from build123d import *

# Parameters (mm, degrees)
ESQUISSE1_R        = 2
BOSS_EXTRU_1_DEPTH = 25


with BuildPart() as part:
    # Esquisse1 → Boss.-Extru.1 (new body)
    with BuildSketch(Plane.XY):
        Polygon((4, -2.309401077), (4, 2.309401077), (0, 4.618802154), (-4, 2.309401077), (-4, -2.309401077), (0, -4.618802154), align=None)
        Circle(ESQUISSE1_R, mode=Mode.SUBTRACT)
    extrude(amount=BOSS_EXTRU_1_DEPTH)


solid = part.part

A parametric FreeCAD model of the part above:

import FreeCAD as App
import Part
import Sketcher
from FreeCAD import Vector
Q = App.Units.Quantity


def add_polygon(sketch, points):
    """Adds a closed chain of lines whose ends are joined by coincident constraints."""
    first, n = sketch.GeometryCount, len(points)
    for a, b in zip(points, points[1:] + points[:1]):
        sketch.addGeometry(Part.LineSegment(App.Vector(*a, 0), App.Vector(*b, 0)), False)
    for i in range(n):
        sketch.addConstraint(Sketcher.Constraint("Coincident", first + i, 2, first + (i + 1) % n, 1))

doc = App.newDocument("Part")
body = doc.addObject("PartDesign::Body", "Body")

# Sketch on XY plane
sketch1 = body.newObject("Sketcher::SketchObject", "Sketch")
sketch1.AttachmentSupport = (doc.getObject("XY_Plane"), [""])
sketch1.MapMode = "FlatFace"
add_polygon(sketch1, [(4, -2.3), (4, 2.3), (0, 4.6), (-4, 2.3), (-4, -2.3), (0, -4.6)])  # lines 0-5
sketch1.addGeometry(Part.Circle(Vector(0, 0, 0), Vector(0, 0, 1), 2), False)  # 6
sketch1.addConstraint(Sketcher.Constraint("Vertical", 0))
sketch1.addConstraint(Sketcher.Constraint("Vertical", 3))
sketch1.addConstraint(Sketcher.Constraint("Coincident", 6, 3, -1, 1))
sketch1.addConstraint(Sketcher.Constraint("Symmetric", 0, 2, 3, 2, -1, 1))
sketch1.addConstraint(Sketcher.Constraint("Symmetric", 1, 2, 4, 2, -1, 1))
sketch1.addConstraint(Sketcher.Constraint("PointOnObject", 1, 2, -2))
sketch1.addConstraint(Sketcher.Constraint("Parallel", 2, 5))
sketch1.addConstraint(Sketcher.Constraint("Horizontal", 0, 2, 2, 2))
sketch1.addConstraint(Sketcher.Constraint("Diameter", 6, Q("4 mm")))
sketch1.addConstraint(Sketcher.Constraint("Angle", 1, Q("150 deg")))
sketch1.addConstraint(Sketcher.Constraint("DistanceX", -1, 1, 0, 2, Q("4 mm")))
sketch1.addConstraint(Sketcher.Constraint("DistanceY", -1, 1, 0, 2, Q("2.309401 mm")))
pad1 = body.newObject("PartDesign::Pad", "Pad")
pad1.Profile = sketch1
pad1.Length = 25

doc.recompute()
